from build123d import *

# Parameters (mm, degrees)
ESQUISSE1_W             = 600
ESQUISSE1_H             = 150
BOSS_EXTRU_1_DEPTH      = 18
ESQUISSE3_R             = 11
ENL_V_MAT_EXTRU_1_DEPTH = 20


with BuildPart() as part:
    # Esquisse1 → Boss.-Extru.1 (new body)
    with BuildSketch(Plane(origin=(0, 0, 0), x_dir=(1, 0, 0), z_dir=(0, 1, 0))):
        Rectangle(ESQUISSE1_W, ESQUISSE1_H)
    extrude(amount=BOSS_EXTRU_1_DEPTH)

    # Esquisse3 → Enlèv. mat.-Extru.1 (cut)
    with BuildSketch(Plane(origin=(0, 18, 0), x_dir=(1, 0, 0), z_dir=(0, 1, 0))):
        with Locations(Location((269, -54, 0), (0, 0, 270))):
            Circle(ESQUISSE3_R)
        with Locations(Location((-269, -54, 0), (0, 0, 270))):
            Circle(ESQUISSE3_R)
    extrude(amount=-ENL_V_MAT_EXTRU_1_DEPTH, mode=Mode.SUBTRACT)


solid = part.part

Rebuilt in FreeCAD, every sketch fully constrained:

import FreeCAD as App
import Part
import Sketcher
Q = App.Units.Quantity


def add_polygon(sketch, points):
    """Adds a closed chain of lines whose ends are joined by coincident constraints."""
    first, n = sketch.GeometryCount, len(points)
    for a, b in zip(points, points[1:] + points[:1]):
        sketch.addGeometry(Part.LineSegment(App.Vector(*a, 0), App.Vector(*b, 0)), False)
    for i in range(n):
        sketch.addConstraint(Sketcher.Constraint("Coincident", first + i, 2, first + (i + 1) % n, 1))

doc = App.newDocument("Part")
body = doc.addObject("PartDesign::Body", "Body")

# Sketch on XZ plane
sketch1 = body.newObject("Sketcher::SketchObject", "Sketch")
sketch1.AttachmentSupport = (doc.getObject("XZ_Plane"), [""])
sketch1.MapMode = "FlatFace"
add_polygon(sketch1, [(-300, -75), (-300, 75), (300, 75), (300, -75)])  # lines 0-3
sketch1.addConstraint([
    Sketcher.Constraint("Vertical", 0),
    Sketcher.Constraint("Horizontal", 1),
    Sketcher.Constraint("Vertical", 2),
    Sketcher.Constraint("Horizontal", 3),
    Sketcher.Constraint("Symmetric", 0, 2, 2, 2, -1, 1),
    Sketcher.Constraint("DistanceX", 1, 1, 1, 2, Q("600 mm")),
    Sketcher.Constraint("DistanceY", 0, 1, 0, 2, Q("150 mm")),
])
pad1 = body.newObject("PartDesign::Pad", "Pad")
pad1.Profile = sketch1
pad1.Length = 18
pad1.Reversed = True

# Sketch on XZ plane
sketch2 = body.newObject("Sketcher::SketchObject", "Sketch001")
sketch2.AttachmentSupport = (doc.getObject("XZ_Plane"), [""])
sketch2.MapMode = "FlatFace"
sketch2.AttachmentOffset = App.Placement(App.Vector(0, 0, -18), App.Rotation())
sketch2.addGeometry([
    Part.Circle(App.Vector(269, 54, 0), App.Vector(0, 0, 1), 11),
    Part.Circle(App.Vector(-269, 54, 0), App.Vector(0, 0, 1), 11),
], False)
sketch2.addConstraint([
    Sketcher.Constraint("Equal", 0, 1),
    Sketcher.Constraint("Symmetric", 0, 3, 1, 3, -2),
    Sketcher.Constraint("Diameter", 0, Q("22 mm")),
    Sketcher.Constraint("DistanceX", -1, 1, 0, 3, Q("269 mm")),
    Sketcher.Constraint("DistanceY", -1, 1, 0, 3, Q("54 mm")),
])
pocket1 = body.newObject("PartDesign::Pocket", "Pocket")
pocket1.Profile = sketch2
pocket1.Length = 20
pocket1.Reversed = True

doc.recompute()
